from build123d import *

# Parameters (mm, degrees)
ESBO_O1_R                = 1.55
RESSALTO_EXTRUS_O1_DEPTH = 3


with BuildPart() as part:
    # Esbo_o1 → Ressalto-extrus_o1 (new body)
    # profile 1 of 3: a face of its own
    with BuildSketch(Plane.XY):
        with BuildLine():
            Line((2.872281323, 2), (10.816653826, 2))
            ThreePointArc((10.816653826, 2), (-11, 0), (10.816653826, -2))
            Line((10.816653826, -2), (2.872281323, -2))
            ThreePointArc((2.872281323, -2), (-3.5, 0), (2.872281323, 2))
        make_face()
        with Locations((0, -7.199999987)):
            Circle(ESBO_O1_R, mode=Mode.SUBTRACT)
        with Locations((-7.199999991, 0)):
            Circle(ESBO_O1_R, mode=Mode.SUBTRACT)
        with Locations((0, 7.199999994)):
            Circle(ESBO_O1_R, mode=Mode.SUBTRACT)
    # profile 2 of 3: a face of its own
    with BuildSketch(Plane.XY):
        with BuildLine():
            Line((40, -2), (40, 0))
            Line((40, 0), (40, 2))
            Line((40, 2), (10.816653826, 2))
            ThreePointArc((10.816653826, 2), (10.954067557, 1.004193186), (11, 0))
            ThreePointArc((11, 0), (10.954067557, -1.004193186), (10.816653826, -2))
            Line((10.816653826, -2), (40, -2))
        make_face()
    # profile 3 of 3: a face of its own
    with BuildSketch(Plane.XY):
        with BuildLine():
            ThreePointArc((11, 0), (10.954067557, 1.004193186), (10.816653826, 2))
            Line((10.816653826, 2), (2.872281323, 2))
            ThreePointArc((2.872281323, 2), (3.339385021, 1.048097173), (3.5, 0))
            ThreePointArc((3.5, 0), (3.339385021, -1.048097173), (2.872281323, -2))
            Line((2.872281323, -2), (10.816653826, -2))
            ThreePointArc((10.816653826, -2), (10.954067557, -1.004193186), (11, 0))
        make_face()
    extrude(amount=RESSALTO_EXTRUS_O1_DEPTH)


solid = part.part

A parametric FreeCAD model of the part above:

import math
import FreeCAD as App
import Part
import Sketcher
from FreeCAD import Vector
Q = App.Units.Quantity

doc = App.newDocument("Part")
body = doc.addObject("PartDesign::Body", "Body")

# Sketch on XY plane
sketch1 = body.newObject("Sketcher::SketchObject", "Sketch")
sketch1.AttachmentSupport = (doc.getObject("XY_Plane"), [""])
sketch1.MapMode = "FlatFace"
sketch1.addGeometry([
    Part.ArcOfCircle(Part.Circle(Vector(0, 0, 0), Vector(0, 0, 1), 11), math.radians(10.475682), math.radians(349.524318)),  # 0
    Part.LineSegment(Vector(10.816654, -2, 0), Vector(40, -2, 0)),  # 1
    Part.LineSegment(Vector(40, -2, 0), Vector(40, 2, 0)),  # 2
    Part.LineSegment(Vector(40, 2, 0), Vector(10.816654, 2, 0)),  # 3
    Part.ArcOfCircle(Part.Circle(Vector(0, 0, 0), Vector(0, 0, 1), 3.5), math.radians(34.849905), math.radians(325.150095)),  # 4
    Part.ArcOfCircle(Part.Circle(Vector(0, 0, 0), Vector(0, 0, 1), 3.5), math.radians(0), math.radians(34.849905)),  # 5
    Part.ArcOfCircle(Part.Circle(Vector(0, 0, 0), Vector(0, 0, 1), 3.5), math.radians(-34.849905), math.radians(0)),  # 6
    Part.Circle(Vector(-7.2, 0, 0), Vector(0, 0, 1), 1.55),  # 7
    Part.Circle(Vector(0, -7.2, 0), Vector(0, 0, 1), 1.55),  # 8
    Part.Circle(Vector(0, 7.2, 0), Vector(0, 0, 1), 1.55),  # 9
], False)
sketch1.addConstraint([
    Sketcher.Constraint("Coincident", 0, 2, 1, 1),
    Sketcher.Constraint("Coincident", 1, 2, 2, 1),
    Sketcher.Constraint("Coincident", 2, 2, 3, 1),
    Sketcher.Constraint("Coincident", 3, 2, 0, 1),
    Sketcher.Constraint("Tangent", 4, 1, 5, 2),
    Sketcher.Constraint("Tangent", 5, 1, 6, 2),
    Sketcher.Constraint("Tangent", 6, 1, 4, 2),
    Sketcher.Constraint("Horizontal", 1),
    Sketcher.Constraint("Vertical", 2),
    Sketcher.Constraint("Horizontal", 3),
    Sketcher.Constraint("Coincident", 0, 3, -1, 1),
    Sketcher.Constraint("Coincident", 4, 3, -1, 1),
    Sketcher.Constraint("Equal", 7, 8),
    Sketcher.Constraint("Equal", 8, 9),
    Sketcher.Constraint("Symmetric", 8, 3, 9, 3, -1, 1),
    Sketcher.Constraint("PointOnObject", 7, 3, -1),
    Sketcher.Constraint("PointOnObject", 8, 3, -2),
    Sketcher.Constraint("PointOnObject", 5, 1, -1),
    Sketcher.Constraint("Horizontal", 3, 2, 4, 1),
    Sketcher.Constraint("Horizontal", 1, 2, 6, 1),
    Sketcher.Constraint("Vertical", 0, 2, 3, 2),
    Sketcher.Constraint("Radius", 0, Q("11 mm")),
    Sketcher.Constraint("Diameter", 7, Q("3.1 mm")),
    Sketcher.Constraint("Radius", 4, Q("3.5 mm")),
    Sketcher.Constraint("DistanceY", 2, 1, 2, 2, Q("4 mm")),
    Sketcher.Constraint("DistanceX", -1, 1, 1, 2, Q("40 mm")),
    Sketcher.Constraint("DistanceX", 7, 3, -1, 1, Q("7.2 mm")),
    Sketcher.Constraint("DistanceY", 8, 3, -1, 1, Q("7.2 mm")),
])
pad1 = body.newObject("PartDesign::Pad", "Pad")
pad1.Profile = sketch1
pad1.Length = 3

doc.recompute()
